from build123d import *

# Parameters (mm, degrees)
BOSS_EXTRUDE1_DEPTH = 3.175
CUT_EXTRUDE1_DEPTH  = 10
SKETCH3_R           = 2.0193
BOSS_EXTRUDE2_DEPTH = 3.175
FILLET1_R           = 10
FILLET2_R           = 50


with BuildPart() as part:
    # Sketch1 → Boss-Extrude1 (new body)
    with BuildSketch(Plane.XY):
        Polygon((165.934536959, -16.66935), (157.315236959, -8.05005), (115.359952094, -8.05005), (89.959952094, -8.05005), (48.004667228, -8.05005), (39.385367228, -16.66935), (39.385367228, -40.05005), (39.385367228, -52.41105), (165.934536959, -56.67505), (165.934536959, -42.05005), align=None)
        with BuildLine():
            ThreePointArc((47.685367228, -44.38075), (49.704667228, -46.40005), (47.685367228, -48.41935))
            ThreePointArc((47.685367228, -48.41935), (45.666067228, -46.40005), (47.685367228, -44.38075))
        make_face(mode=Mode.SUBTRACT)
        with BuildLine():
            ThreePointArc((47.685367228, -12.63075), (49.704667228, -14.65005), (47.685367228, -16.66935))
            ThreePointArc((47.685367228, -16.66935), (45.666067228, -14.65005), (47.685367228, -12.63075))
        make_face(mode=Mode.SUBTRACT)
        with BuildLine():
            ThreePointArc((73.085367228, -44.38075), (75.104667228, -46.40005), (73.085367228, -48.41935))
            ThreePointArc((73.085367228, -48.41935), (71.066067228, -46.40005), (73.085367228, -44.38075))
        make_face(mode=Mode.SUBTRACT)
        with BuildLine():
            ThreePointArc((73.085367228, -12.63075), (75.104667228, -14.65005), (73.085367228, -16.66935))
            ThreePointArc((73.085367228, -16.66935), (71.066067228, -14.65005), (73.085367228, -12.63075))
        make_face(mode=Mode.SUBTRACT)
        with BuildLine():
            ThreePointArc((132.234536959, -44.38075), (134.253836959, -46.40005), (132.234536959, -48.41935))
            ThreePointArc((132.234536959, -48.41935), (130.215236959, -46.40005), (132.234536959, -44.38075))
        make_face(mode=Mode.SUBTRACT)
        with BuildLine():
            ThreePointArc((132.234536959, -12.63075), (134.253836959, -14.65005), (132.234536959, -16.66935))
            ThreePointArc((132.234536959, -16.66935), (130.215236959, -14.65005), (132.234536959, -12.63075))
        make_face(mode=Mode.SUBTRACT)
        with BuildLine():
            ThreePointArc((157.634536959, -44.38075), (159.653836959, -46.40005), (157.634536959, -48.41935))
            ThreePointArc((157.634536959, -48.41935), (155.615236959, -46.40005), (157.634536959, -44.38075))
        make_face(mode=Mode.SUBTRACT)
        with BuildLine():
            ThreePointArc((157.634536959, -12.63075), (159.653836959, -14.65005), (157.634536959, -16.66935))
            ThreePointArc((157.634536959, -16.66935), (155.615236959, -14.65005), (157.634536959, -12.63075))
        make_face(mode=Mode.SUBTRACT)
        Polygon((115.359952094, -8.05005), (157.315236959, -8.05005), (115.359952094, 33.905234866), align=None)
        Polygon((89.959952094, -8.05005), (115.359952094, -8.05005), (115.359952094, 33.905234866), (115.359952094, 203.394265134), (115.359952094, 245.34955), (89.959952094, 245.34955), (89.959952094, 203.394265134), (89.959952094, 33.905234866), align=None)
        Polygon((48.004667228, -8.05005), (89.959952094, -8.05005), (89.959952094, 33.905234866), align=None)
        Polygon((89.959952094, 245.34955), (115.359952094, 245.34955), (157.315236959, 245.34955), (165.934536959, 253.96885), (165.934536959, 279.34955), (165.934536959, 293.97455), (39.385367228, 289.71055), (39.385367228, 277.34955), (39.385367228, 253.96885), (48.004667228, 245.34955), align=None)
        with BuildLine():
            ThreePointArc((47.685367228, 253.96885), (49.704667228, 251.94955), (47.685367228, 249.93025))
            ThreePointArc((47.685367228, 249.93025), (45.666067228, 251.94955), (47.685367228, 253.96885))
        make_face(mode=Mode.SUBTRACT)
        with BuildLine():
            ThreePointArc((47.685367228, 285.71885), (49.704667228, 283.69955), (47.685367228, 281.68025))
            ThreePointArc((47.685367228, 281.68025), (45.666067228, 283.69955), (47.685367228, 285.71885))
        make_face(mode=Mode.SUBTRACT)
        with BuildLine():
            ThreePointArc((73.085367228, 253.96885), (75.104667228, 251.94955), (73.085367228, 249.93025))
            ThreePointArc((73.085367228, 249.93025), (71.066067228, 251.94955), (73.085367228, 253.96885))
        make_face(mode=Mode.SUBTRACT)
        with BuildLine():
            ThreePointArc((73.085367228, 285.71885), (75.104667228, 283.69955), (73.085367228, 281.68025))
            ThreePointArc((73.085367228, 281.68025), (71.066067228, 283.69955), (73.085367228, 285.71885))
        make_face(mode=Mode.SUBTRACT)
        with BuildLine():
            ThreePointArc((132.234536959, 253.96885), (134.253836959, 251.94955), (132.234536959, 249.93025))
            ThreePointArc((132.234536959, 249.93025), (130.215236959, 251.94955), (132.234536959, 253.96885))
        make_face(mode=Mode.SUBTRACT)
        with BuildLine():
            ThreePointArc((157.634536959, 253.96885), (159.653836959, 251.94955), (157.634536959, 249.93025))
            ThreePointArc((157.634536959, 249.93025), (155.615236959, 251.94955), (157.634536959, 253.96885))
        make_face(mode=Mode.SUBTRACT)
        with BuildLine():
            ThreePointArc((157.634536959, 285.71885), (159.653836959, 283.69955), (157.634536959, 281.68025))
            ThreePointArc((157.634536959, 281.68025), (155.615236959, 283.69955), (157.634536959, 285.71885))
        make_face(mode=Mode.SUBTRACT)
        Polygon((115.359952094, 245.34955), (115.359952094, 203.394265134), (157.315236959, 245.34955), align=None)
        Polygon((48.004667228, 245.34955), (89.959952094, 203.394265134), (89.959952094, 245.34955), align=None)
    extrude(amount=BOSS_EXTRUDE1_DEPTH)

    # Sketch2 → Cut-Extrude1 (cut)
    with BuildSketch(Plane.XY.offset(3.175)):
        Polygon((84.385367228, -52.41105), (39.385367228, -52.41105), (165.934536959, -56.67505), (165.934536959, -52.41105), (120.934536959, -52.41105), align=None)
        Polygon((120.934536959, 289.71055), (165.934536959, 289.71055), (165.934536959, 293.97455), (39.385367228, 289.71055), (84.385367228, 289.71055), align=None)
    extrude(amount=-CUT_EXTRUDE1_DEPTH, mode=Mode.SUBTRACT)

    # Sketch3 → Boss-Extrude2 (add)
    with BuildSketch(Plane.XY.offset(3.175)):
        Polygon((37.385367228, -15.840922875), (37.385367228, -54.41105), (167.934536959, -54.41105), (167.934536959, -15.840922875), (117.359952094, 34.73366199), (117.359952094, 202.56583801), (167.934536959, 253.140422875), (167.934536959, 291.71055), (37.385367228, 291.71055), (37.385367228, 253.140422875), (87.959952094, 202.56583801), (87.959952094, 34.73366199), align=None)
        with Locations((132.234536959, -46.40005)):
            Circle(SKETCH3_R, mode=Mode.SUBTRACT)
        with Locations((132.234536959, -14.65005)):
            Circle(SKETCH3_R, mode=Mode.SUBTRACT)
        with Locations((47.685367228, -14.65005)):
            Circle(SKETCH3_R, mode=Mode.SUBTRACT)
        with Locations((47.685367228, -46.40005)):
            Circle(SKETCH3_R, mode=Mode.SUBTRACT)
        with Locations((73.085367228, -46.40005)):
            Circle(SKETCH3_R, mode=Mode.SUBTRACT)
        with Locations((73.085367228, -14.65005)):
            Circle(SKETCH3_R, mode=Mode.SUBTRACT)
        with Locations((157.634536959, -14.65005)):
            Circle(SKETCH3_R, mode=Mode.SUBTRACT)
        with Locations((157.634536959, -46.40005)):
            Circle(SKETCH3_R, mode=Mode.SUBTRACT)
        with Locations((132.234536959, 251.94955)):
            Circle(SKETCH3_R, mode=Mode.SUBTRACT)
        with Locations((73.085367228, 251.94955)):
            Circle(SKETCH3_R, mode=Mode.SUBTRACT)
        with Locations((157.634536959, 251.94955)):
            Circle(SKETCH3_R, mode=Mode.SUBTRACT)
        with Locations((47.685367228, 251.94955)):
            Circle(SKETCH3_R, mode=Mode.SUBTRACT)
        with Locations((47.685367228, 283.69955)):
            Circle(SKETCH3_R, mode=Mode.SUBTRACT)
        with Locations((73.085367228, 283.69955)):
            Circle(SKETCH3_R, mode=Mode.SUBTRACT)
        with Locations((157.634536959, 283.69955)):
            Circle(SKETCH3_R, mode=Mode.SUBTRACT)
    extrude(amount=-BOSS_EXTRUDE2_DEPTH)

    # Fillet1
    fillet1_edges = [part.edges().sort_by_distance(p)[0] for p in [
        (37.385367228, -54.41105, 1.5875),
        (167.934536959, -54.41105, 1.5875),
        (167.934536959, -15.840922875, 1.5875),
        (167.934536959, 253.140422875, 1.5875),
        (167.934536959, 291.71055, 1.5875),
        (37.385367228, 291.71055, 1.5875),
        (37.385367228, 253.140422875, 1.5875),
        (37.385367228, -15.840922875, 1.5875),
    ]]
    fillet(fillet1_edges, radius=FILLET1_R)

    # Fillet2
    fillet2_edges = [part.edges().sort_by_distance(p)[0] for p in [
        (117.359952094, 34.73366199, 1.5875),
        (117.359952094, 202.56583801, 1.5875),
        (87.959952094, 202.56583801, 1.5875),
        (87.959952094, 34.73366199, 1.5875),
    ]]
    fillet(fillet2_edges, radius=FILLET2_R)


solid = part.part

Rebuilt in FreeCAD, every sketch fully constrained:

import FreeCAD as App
import Part
import Sketcher
from FreeCAD import Vector


def edges_at(feature, points):
    """Names of the edges that pass closest to the given points."""
    edges = feature.Shape.Edges
    near = lambda p: min(range(len(edges)), key=lambda i: edges[i].distToShape(Part.Vertex(*p))[0])
    return sorted({f"Edge{near(p) + 1}" for p in points})


def add_polygon(sketch, points):
    """Adds a closed chain of lines whose ends are joined by coincident constraints."""
    first, n = sketch.GeometryCount, len(points)
    for a, b in zip(points, points[1:] + points[:1]):
        sketch.addGeometry(Part.LineSegment(App.Vector(*a, 0), App.Vector(*b, 0)), False)
    for i in range(n):
        sketch.addConstraint(Sketcher.Constraint("Coincident", first + i, 2, first + (i + 1) % n, 1))

doc = App.newDocument("Part")
body = doc.addObject("PartDesign::Body", "Body")

sketch1 = body.newObject("Sketcher::SketchObject", "Sketch")
sketch1.AttachmentSupport = (doc.getObject("XY_Plane"), [""])
sketch1.MapMode = "FlatFace"
add_polygon(sketch1, [(165.9, -16.7), (157.3, -8.1), (115.4, 33.9), (115.4, 203.4), (157.3, 245.3), (165.9, 254), (165.9, 294), (39.4, 289.7), (39.4, 254), (90, 203.4), (90, 33.9), (39.4, -16.7), (39.4, -52.4), (165.9, -56.7)])
sketch1.addGeometry(Part.Circle(Vector(47.7, -46.4, 0), Vector(0, 0, 1), 2), False)
sketch1.addGeometry(Part.Circle(Vector(47.7, -14.7, 0), Vector(0, 0, 1), 2), False)
sketch1.addGeometry(Part.Circle(Vector(73.1, -46.4, 0), Vector(0, 0, 1), 2), False)
sketch1.addGeometry(Part.Circle(Vector(73.1, -14.7, 0), Vector(0, 0, 1), 2), False)
sketch1.addGeometry(Part.Circle(Vector(132.2, -46.4, 0), Vector(0, 0, 1), 2), False)
sketch1.addGeometry(Part.Circle(Vector(132.2, -14.7, 0), Vector(0, 0, 1), 2), False)
sketch1.addGeometry(Part.Circle(Vector(157.6, -46.4, 0), Vector(0, 0, 1), 2), False)
sketch1.addGeometry(Part.Circle(Vector(157.6, -14.7, 0), Vector(0, 0, 1), 2), False)
sketch1.addGeometry(Part.Circle(Vector(47.7, 251.9, 0), Vector(0, 0, 1), 2), False)
sketch1.addGeometry(Part.Circle(Vector(47.7, 283.7, 0), Vector(0, 0, 1), 2), False)
sketch1.addGeometry(Part.Circle(Vector(73.1, 251.9, 0), Vector(0, 0, 1), 2), False)
sketch1.addGeometry(Part.Circle(Vector(73.1, 283.7, 0), Vector(0, 0, 1), 2), False)
sketch1.addGeometry(Part.Circle(Vector(132.2, 251.9, 0), Vector(0, 0, 1), 2), False)
sketch1.addGeometry(Part.Circle(Vector(157.6, 251.9, 0), Vector(0, 0, 1), 2), False)
sketch1.addGeometry(Part.Circle(Vector(157.6, 283.7, 0), Vector(0, 0, 1), 2), False)
sketch1.addConstraint([
    Sketcher.Constraint("Vertical", 2),
    Sketcher.Constraint("Vertical", 5),
    Sketcher.Constraint("Vertical", 7),
    Sketcher.Constraint("Vertical", 9),
    Sketcher.Constraint("Vertical", 11),
    Sketcher.Constraint("Vertical", 13),
    Sketcher.Constraint("Equal", 14, 15),
    Sketcher.Constraint("Equal", 15, 16),
    Sketcher.Constraint("Equal", 16, 17),
    Sketcher.Constraint("Equal", 17, 18),
    Sketcher.Constraint("Equal", 18, 19),
    Sketcher.Constraint("Equal", 19, 20),
    Sketcher.Constraint("Equal", 20, 21),
    Sketcher.Constraint("Equal", 21, 22),
    Sketcher.Constraint("Equal", 22, 23),
    Sketcher.Constraint("Equal", 23, 24),
    Sketcher.Constraint("Equal", 24, 25),
    Sketcher.Constraint("Equal", 25, 26),
    Sketcher.Constraint("Equal", 26, 27),
    Sketcher.Constraint("Equal", 27, 28),
    Sketcher.Constraint("Parallel", 0, 1),
    Sketcher.Constraint("Perpendicular", 1, 3),
    Sketcher.Constraint("Parallel", 3, 4),
    Sketcher.Constraint("Perpendicular", 4, 8),
    Sketcher.Constraint("Perpendicular", 8, 10),
    Sketcher.Constraint("Horizontal", 14, 3, 16, 3),
    Sketcher.Constraint("Horizontal", 15, 3, 17, 3),
    Sketcher.Constraint("Horizontal", 16, 3, 18, 3),
    Sketcher.Constraint("Horizontal", 17, 3, 19, 3),
    Sketcher.Constraint("Horizontal", 18, 3, 20, 3),
    Sketcher.Constraint("Horizontal", 19, 3, 21, 3),
    Sketcher.Constraint("Horizontal", 22, 3, 24, 3),
    Sketcher.Constraint("Horizontal", 23, 3, 25, 3),
    Sketcher.Constraint("Horizontal", 24, 3, 26, 3),
    Sketcher.Constraint("Horizontal", 26, 3, 27, 3),
    Sketcher.Constraint("Horizontal", 25, 3, 28, 3),
    Sketcher.Constraint("Horizontal", 4, 2, 7, 2),
    Sketcher.Constraint("Horizontal", 2, 2, 8, 2),
    Sketcher.Constraint("Horizontal", 1, 2, 9, 2),
    Sketcher.Constraint("Horizontal", 10, 2, 13, 2),
    Sketcher.Constraint("Vertical", 14, 3, 15, 3),
    Sketcher.Constraint("Vertical", 16, 3, 17, 3),
    Sketcher.Constraint("Vertical", 18, 3, 19, 3),
    Sketcher.Constraint("Vertical", 20, 3, 21, 3),
    Sketcher.Constraint("Vertical", 15, 3, 22, 3),
    Sketcher.Constraint("Vertical", 22, 3, 23, 3),
    Sketcher.Constraint("Vertical", 17, 3, 24, 3),
    Sketcher.Constraint("Vertical", 24, 3, 25, 3),
    Sketcher.Constraint("Vertical", 19, 3, 26, 3),
    Sketcher.Constraint("Vertical", 21, 3, 27, 3),
    Sketcher.Constraint("Vertical", 27, 3, 28, 3),
    Sketcher.Constraint("Vertical", 0, 2, 3, 2),
    Sketcher.Constraint("Vertical", 7, 2, 10, 2),
    Sketcher.Constraint("Vertical", 5, 2, 12, 2),
    Sketcher.Constraint("Equal", 7, 11),
    Sketcher.Constraint("Equal", 5, 13),
    Sketcher.Constraint("Diameter", 14, 4.0386),
    Sketcher.Constraint("DistanceX", 14, 3, 16, 3, 25.4),
    Sketcher.Constraint("DistanceX", 18, 3, 20, 3, 25.4),
    Sketcher.Constraint("DistanceY", 21, 3, 0, 2, 6.6),
    Sketcher.Constraint("DistanceY", 3, 2, 27, 3, 6.6),
    Sketcher.Constraint("DistanceX", 27, 3, 4, 2, 8.3),
    Sketcher.Constraint("DistanceX", 6, 2, 23, 3, 8.3),
    Sketcher.Constraint("DistanceX", 8, 2, 2, 2, 25.4),
    Sketcher.Constraint("DistanceY", 14, 3, 15, 3, 31.75),
    Sketcher.Constraint("DistanceY", 22, 3, 23, 3, 31.75),
    Sketcher.Constraint("DistanceY", 5, 1, 5, 2, 40.0057),
    Sketcher.Constraint("DistanceY", 7, 2, 7, 1, 35.7417),
    Sketcher.Constraint("DistanceY", 28, 3, 5, 2, 10.275),
    Sketcher.Constraint("DistanceY", 2, 1, 2, 2, 169.48903),
    Sketcher.Constraint("DistanceY", 15, 3, 22, 3, 266.5996),
    Sketcher.Constraint("DistanceY", 14, 3, -1, 1, 46.40005),
    Sketcher.Constraint("DistanceX", -1, 1, 14, 3, 47.685367),
])
pad1 = body.newObject("PartDesign::Pad", "Pad")
pad1.Profile = sketch1
pad1.Length = 3.175

sketch2 = body.newObject("Sketcher::SketchObject", "Sketch001")
sketch2.AttachmentSupport = (doc.getObject("XY_Plane"), [""])
sketch2.MapMode = "FlatFace"
sketch2.AttachmentOffset = App.Placement(Vector(0, 0, 3.175), App.Rotation())
add_polygon(sketch2, [(39.4, -52.4), (165.9, -56.7), (165.9, -52.4)])
add_polygon(sketch2, [(165.9, 289.7), (165.9, 294), (39.4, 289.7)])
sketch2.addConstraint([
    Sketcher.Constraint("Vertical", 1),
    Sketcher.Constraint("Horizontal", 2),
    Sketcher.Constraint("Vertical", 3),
    Sketcher.Constraint("Horizontal", 5),
    Sketcher.Constraint("Vertical", 1, 2, 3, 2),
    Sketcher.Constraint("Vertical", 2, 2, 4, 2),
    Sketcher.Constraint("Equal", 1, 3),
    Sketcher.Constraint("DistanceY", 1, 1, 1, 2, 4.264),
    Sketcher.Constraint("DistanceX", 2, 2, 2, 1, 126.54917),
    Sketcher.Constraint("DistanceY", 1, 2, 3, 2, 346.3856),
    Sketcher.Constraint("DistanceY", 0, 2, -1, 1, 56.67505),
    Sketcher.Constraint("DistanceX", -1, 1, 0, 2, 165.934537),
])
pocket1 = body.newObject("PartDesign::Pocket", "Pocket")
pocket1.Profile = sketch2
pocket1.Length = 10

sketch3 = body.newObject("Sketcher::SketchObject", "Sketch002")
sketch3.AttachmentSupport = (doc.getObject("XY_Plane"), [""])
sketch3.MapMode = "FlatFace"
sketch3.AttachmentOffset = App.Placement(Vector(0, 0, 3.175), App.Rotation())
add_polygon(sketch3, [(37.4, -15.8), (37.4, -54.4), (167.9, -54.4), (167.9, -15.8), (117.4, 34.7), (117.4, 202.6), (167.9, 253.1), (167.9, 291.7), (37.4, 291.7), (37.4, 253.1), (88, 202.6), (88, 34.7)])
sketch3.addGeometry(Part.Circle(Vector(47.7, -46.4, 0), Vector(0, 0, 1), 2), False)
sketch3.addGeometry(Part.Circle(Vector(47.7, -14.7, 0), Vector(0, 0, 1), 2), False)
sketch3.addGeometry(Part.Circle(Vector(73.1, -46.4, 0), Vector(0, 0, 1), 2), False)
sketch3.addGeometry(Part.Circle(Vector(73.1, -14.7, 0), Vector(0, 0, 1), 2), False)
sketch3.addGeometry(Part.Circle(Vector(132.2, -46.4, 0), Vector(0, 0, 1), 2), False)
sketch3.addGeometry(Part.Circle(Vector(132.2, -14.7, 0), Vector(0, 0, 1), 2), False)
sketch3.addGeometry(Part.Circle(Vector(157.6, -46.4, 0), Vector(0, 0, 1), 2), False)
sketch3.addGeometry(Part.Circle(Vector(157.6, -14.7, 0), Vector(0, 0, 1), 2), False)
sketch3.addGeometry(Part.Circle(Vector(47.7, 251.9, 0), Vector(0, 0, 1), 2), False)
sketch3.addGeometry(Part.Circle(Vector(47.7, 283.7, 0), Vector(0, 0, 1), 2), False)
sketch3.addGeometry(Part.Circle(Vector(73.1, 251.9, 0), Vector(0, 0, 1), 2), False)
sketch3.addGeometry(Part.Circle(Vector(73.1, 283.7, 0), Vector(0, 0, 1), 2), False)
sketch3.addGeometry(Part.Circle(Vector(132.2, 251.9, 0), Vector(0, 0, 1), 2), False)
sketch3.addGeometry(Part.Circle(Vector(157.6, 251.9, 0), Vector(0, 0, 1), 2), False)
sketch3.addGeometry(Part.Circle(Vector(157.6, 283.7, 0), Vector(0, 0, 1), 2), False)
sketch3.addConstraint([
    Sketcher.Constraint("Vertical", 0),
    Sketcher.Constraint("Horizontal", 1),
    Sketcher.Constraint("Vertical", 2),
    Sketcher.Constraint("Vertical", 4),
    Sketcher.Constraint("Vertical", 6),
    Sketcher.Constraint("Horizontal", 7),
    Sketcher.Constraint("Vertical", 8),
    Sketcher.Constraint("Vertical", 10),
    Sketcher.Constraint("Equal", 12, 13),
    Sketcher.Constraint("Equal", 13, 14),
    Sketcher.Constraint("Equal", 14, 15),
    Sketcher.Constraint("Equal", 15, 16),
    Sketcher.Constraint("Equal", 16, 17),
    Sketcher.Constraint("Equal", 17, 18),
    Sketcher.Constraint("Equal", 18, 19),
    Sketcher.Constraint("Equal", 19, 20),
    Sketcher.Constraint("Equal", 20, 21),
    Sketcher.Constraint("Equal", 21, 22),
    Sketcher.Constraint("Equal", 22, 23),
    Sketcher.Constraint("Equal", 23, 24),
    Sketcher.Constraint("Equal", 24, 25),
    Sketcher.Constraint("Equal", 25, 26),
    Sketcher.Constraint("Perpendicular", 3, 5),
    Sketcher.Constraint("Perpendicular", 5, 9),
    Sketcher.Constraint("Perpendicular", 9, 11),
    Sketcher.Constraint("Horizontal", 12, 3, 14, 3),
    Sketcher.Constraint("Horizontal", 13, 3, 15, 3),
    Sketcher.Constraint("Horizontal", 14, 3, 16, 3),
    Sketcher.Constraint("Horizontal", 15, 3, 17, 3),
    Sketcher.Constraint("Horizontal", 16, 3, 18, 3),
    Sketcher.Constraint("Horizontal", 17, 3, 19, 3),
    Sketcher.Constraint("Horizontal", 20, 3, 22, 3),
    Sketcher.Constraint("Horizontal", 21, 3, 23, 3),
    Sketcher.Constraint("Horizontal", 22, 3, 24, 3),
    Sketcher.Constraint("Horizontal", 24, 3, 25, 3),
    Sketcher.Constraint("Horizontal", 23, 3, 26, 3),
    Sketcher.Constraint("Horizontal", 5, 2, 8, 2),
    Sketcher.Constraint("Horizontal", 4, 2, 9, 2),
    Sketcher.Constraint("Horizontal", 3, 2, 10, 2),
    Sketcher.Constraint("Horizontal", 2, 2, 11, 2),
    Sketcher.Constraint("Vertical", 12, 3, 13, 3),
    Sketcher.Constraint("Vertical", 14, 3, 15, 3),
    Sketcher.Constraint("Vertical", 16, 3, 17, 3),
    Sketcher.Constraint("Vertical", 18, 3, 19, 3),
    Sketcher.Constraint("Vertical", 13, 3, 20, 3),
    Sketcher.Constraint("Vertical", 20, 3, 21, 3),
    Sketcher.Constraint("Vertical", 15, 3, 22, 3),
    Sketcher.Constraint("Vertical", 22, 3, 23, 3),
    Sketcher.Constraint("Vertical", 17, 3, 24, 3),
    Sketcher.Constraint("Vertical", 19, 3, 25, 3),
    Sketcher.Constraint("Vertical", 25, 3, 26, 3),
    Sketcher.Constraint("Vertical", 2, 2, 5, 2),
    Sketcher.Constraint("Vertical", 0, 2, 7, 2),
    Sketcher.Constraint("Equal", 2, 6),
    Sketcher.Constraint("Diameter", 12, 4.0386),
    Sketcher.Constraint("DistanceX", 12, 3, 14, 3, 25.4),
    Sketcher.Constraint("DistanceX", 16, 3, 18, 3, 25.4),
    Sketcher.Constraint("DistanceX", 0, 2, 12, 3, 10.3),
    Sketcher.Constraint("DistanceX", 18, 3, 1, 2, 10.3),
    Sketcher.Constraint("DistanceX", 9, 2, 4, 2, 29.4),
    Sketcher.Constraint("DistanceY", 12, 3, 13, 3, 31.75),
    Sketcher.Constraint("DistanceY", 20, 3, 21, 3, 31.75),
    Sketcher.Constraint("DistanceY", 0, 2, 12, 3, 8.011),
    Sketcher.Constraint("DistanceY", 26, 3, 6, 2, 8.011),
    Sketcher.Constraint("DistanceX", 1, 1, 1, 2, 130.54917),
    Sketcher.Constraint("DistanceY", 13, 3, 20, 3, 266.5996),
    Sketcher.Constraint("DistanceY", 0, 2, 0, 1, 38.570127),
    Sketcher.Constraint("DistanceY", 12, 3, -1, 1, 46.40005),
    Sketcher.Constraint("DistanceX", -1, 1, 12, 3, 47.685367),
])
pad2 = body.newObject("PartDesign::Pad", "Pad001")
pad2.Profile = sketch3
pad2.Length = 3.175
pad2.Reversed = True
doc.recompute()

fillet = body.newObject("PartDesign::Fillet", "Fillet")
fillet.Base = (pad2, edges_at(pad2, [
    (37.385, -54.411, 1.587),
    (167.935, -54.411, 1.587),
    (167.935, -15.841, 1.587),
    (167.935, 253.14, 1.587),
    (167.935, 291.711, 1.587),
    (37.385, 291.711, 1.587),
    (37.385, 253.14, 1.587),
    (37.385, -15.841, 1.587),
]))
fillet.Radius = 10
doc.recompute()

fillet2 = body.newObject("PartDesign::Fillet", "Fillet001")
fillet2.Base = (fillet, edges_at(fillet, [
    (117.36, 34.734, 1.587),
    (117.36, 202.566, 1.587),
    (87.96, 202.566, 1.587),
    (87.96, 34.734, 1.587),
]))
fillet2.Radius = 50

doc.recompute()
